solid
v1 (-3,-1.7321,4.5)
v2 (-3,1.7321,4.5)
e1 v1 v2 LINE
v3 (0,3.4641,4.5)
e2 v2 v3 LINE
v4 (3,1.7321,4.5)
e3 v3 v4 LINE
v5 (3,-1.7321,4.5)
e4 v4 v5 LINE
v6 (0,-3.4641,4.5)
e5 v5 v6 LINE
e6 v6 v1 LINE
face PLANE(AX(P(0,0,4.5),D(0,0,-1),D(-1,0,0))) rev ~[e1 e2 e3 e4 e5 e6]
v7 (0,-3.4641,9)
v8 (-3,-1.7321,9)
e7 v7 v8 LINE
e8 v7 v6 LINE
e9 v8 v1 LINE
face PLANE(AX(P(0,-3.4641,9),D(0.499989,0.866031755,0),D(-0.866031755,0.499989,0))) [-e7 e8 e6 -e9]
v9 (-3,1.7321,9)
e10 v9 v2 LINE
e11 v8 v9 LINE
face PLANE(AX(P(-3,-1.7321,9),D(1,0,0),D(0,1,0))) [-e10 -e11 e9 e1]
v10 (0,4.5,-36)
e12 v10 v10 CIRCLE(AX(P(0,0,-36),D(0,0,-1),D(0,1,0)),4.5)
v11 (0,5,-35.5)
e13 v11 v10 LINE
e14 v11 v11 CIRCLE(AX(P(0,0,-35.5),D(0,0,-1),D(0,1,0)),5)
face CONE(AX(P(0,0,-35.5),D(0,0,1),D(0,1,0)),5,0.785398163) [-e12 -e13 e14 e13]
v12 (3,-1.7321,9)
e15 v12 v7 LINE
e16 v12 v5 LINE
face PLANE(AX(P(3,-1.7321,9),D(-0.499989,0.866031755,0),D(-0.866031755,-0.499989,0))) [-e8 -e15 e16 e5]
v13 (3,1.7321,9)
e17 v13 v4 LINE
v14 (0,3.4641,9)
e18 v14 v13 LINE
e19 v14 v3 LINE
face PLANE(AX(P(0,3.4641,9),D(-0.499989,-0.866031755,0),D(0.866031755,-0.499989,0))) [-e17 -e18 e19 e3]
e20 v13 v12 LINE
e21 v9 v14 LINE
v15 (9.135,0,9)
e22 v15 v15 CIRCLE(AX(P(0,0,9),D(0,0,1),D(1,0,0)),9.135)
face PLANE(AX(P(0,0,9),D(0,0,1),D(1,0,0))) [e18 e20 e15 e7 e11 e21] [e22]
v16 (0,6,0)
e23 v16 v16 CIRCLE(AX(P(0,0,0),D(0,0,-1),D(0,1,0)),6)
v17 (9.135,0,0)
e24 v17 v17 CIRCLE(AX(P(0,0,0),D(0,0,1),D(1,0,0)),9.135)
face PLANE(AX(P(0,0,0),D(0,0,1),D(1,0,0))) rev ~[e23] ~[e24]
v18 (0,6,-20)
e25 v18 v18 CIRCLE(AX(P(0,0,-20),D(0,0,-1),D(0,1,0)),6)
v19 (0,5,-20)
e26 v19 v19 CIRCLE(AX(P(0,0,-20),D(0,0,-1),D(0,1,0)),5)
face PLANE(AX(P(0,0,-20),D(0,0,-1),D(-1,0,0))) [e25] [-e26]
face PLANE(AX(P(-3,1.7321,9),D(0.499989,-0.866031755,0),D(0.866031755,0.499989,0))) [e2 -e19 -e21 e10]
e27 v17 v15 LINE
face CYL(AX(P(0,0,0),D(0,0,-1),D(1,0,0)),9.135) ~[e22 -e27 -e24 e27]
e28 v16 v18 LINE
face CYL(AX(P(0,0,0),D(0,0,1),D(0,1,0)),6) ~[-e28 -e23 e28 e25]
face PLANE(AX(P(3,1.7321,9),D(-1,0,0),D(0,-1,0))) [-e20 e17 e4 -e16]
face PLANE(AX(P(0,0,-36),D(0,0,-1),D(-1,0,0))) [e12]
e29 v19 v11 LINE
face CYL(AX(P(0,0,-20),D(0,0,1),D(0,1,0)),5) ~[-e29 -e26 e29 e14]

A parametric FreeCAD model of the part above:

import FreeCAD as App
import Part
import Sketcher
from FreeCAD import Vector
Q = App.Units.Quantity


def edges_at(feature, points):
    """Names of the edges that pass closest to the given points."""
    edges = feature.Shape.Edges
    near = lambda p: min(range(len(edges)), key=lambda i: edges[i].distToShape(Part.Vertex(*p))[0])
    return sorted({f"Edge{near(p) + 1}" for p in points})

doc = App.newDocument("Part")
body = doc.addObject("PartDesign::Body", "Body")

# Sketch on XY plane
sketch1 = body.newObject("Sketcher::SketchObject", "Sketch")
sketch1.AttachmentSupport = (doc.getObject("XY_Plane"), [""])
sketch1.MapMode = "FlatFace"
sketch1.addGeometry(Part.Circle(Vector(0, 0, 0), Vector(0, 0, 1), 9), False)
sketch1.addConstraint(Sketcher.Constraint("Coincident", 0, 3, -1, 1))
sketch1.addConstraint(Sketcher.Constraint("Diameter", 0, Q("18.27 mm")))
pad1 = body.newObject("PartDesign::Pad", "Pad")
pad1.Profile = sketch1
pad1.Length = 9

# Sketch on XY plane
sketch2 = body.newObject("Sketcher::SketchObject", "Sketch001")
sketch2.AttachmentSupport = (doc.getObject("XY_Plane"), [""])
sketch2.MapMode = "FlatFace"
sketch2.AttachmentOffset = App.Placement(Vector(0, 0, 9), App.Rotation())
sketch2.addGeometry(Part.LineSegment(Vector(-3, -1.7, 0), Vector(0, -3.5, 0)), False)
sketch2.addGeometry(Part.LineSegment(Vector(0, -3.5, 0), Vector(3, -1.7, 0)), False)
sketch2.addGeometry(Part.LineSegment(Vector(3, -1.7, 0), Vector(3, 1.7, 0)), False)
sketch2.addGeometry(Part.LineSegment(Vector(3, 1.7, 0), Vector(0, 3.5, 0)), False)
sketch2.addGeometry(Part.LineSegment(Vector(0, 3.5, 0), Vector(-3, 1.7, 0)), False)
sketch2.addGeometry(Part.LineSegment(Vector(-3, 1.7, 0), Vector(-3, -1.7, 0)), False)
sketch2.addConstraint(Sketcher.Constraint("Coincident", 0, 2, 1, 1))
sketch2.addConstraint(Sketcher.Constraint("Coincident", 1, 2, 2, 1))
sketch2.addConstraint(Sketcher.Constraint("Coincident", 2, 2, 3, 1))
sketch2.addConstraint(Sketcher.Constraint("Coincident", 3, 2, 4, 1))
sketch2.addConstraint(Sketcher.Constraint("Coincident", 4, 2, 5, 1))
sketch2.addConstraint(Sketcher.Constraint("Coincident", 5, 2, 0, 1))
sketch2.addConstraint(Sketcher.Constraint("Vertical", 2))
sketch2.addConstraint(Sketcher.Constraint("Vertical", 5))
sketch2.addConstraint(Sketcher.Constraint("Symmetric", 0, 2, 3, 2, -1, 1))
sketch2.addConstraint(Sketcher.Constraint("Symmetric", 1, 2, 4, 2, -1, 1))
sketch2.addConstraint(Sketcher.Constraint("PointOnObject", 0, 2, -2))
sketch2.addConstraint(Sketcher.Constraint("Parallel", 0, 3))
sketch2.addConstraint(Sketcher.Constraint("Horizontal", 2, 2, 4, 2))
sketch2.addConstraint(Sketcher.Constraint("Angle", 0, Q("-29.9993 deg")))
sketch2.addConstraint(Sketcher.Constraint("DistanceX", -1, 1, 1, 2, Q("3 mm")))
sketch2.addConstraint(Sketcher.Constraint("DistanceY", 2, 1, 2, 2, Q("3.4642 mm")))
pocket1 = body.newObject("PartDesign::Pocket", "Pocket")
pocket1.Profile = sketch2
pocket1.Length = 4.5

# Sketch on XY plane
sketch3 = body.newObject("Sketcher::SketchObject", "Sketch002")
sketch3.AttachmentSupport = (doc.getObject("XY_Plane"), [""])
sketch3.MapMode = "FlatFace"
sketch3.addGeometry(Part.Circle(Vector(0, 0, 0), Vector(0, 0, 1), 6), False)
sketch3.addConstraint(Sketcher.Constraint("Coincident", 0, 3, -1, 1))
sketch3.addConstraint(Sketcher.Constraint("Diameter", 0, Q("12 mm")))
pad2 = body.newObject("PartDesign::Pad", "Pad001")
pad2.Profile = sketch3
pad2.Length = 20
pad2.Reversed = True

# Sketch on XY plane
sketch4 = body.newObject("Sketcher::SketchObject", "Sketch003")
sketch4.AttachmentSupport = (doc.getObject("XY_Plane"), [""])
sketch4.MapMode = "FlatFace"
sketch4.AttachmentOffset = App.Placement(Vector(0, 0, -20), App.Rotation())
sketch4.addGeometry(Part.Circle(Vector(0, 0, 0), Vector(0, 0, 1), 5), False)
sketch4.addConstraint(Sketcher.Constraint("Coincident", 0, 3, -1, 1))
sketch4.addConstraint(Sketcher.Constraint("Diameter", 0, Q("10 mm")))
pad3 = body.newObject("PartDesign::Pad", "Pad002")
pad3.Profile = sketch4
pad3.Length = 16
pad3.Reversed = True
doc.recompute()

chamfer = body.newObject("PartDesign::Chamfer", "Chamfer")
chamfer.Base = (pad3, edges_at(pad3, [(0, -5, -36)]))
chamfer.Size = 0.5

doc.recompute()
